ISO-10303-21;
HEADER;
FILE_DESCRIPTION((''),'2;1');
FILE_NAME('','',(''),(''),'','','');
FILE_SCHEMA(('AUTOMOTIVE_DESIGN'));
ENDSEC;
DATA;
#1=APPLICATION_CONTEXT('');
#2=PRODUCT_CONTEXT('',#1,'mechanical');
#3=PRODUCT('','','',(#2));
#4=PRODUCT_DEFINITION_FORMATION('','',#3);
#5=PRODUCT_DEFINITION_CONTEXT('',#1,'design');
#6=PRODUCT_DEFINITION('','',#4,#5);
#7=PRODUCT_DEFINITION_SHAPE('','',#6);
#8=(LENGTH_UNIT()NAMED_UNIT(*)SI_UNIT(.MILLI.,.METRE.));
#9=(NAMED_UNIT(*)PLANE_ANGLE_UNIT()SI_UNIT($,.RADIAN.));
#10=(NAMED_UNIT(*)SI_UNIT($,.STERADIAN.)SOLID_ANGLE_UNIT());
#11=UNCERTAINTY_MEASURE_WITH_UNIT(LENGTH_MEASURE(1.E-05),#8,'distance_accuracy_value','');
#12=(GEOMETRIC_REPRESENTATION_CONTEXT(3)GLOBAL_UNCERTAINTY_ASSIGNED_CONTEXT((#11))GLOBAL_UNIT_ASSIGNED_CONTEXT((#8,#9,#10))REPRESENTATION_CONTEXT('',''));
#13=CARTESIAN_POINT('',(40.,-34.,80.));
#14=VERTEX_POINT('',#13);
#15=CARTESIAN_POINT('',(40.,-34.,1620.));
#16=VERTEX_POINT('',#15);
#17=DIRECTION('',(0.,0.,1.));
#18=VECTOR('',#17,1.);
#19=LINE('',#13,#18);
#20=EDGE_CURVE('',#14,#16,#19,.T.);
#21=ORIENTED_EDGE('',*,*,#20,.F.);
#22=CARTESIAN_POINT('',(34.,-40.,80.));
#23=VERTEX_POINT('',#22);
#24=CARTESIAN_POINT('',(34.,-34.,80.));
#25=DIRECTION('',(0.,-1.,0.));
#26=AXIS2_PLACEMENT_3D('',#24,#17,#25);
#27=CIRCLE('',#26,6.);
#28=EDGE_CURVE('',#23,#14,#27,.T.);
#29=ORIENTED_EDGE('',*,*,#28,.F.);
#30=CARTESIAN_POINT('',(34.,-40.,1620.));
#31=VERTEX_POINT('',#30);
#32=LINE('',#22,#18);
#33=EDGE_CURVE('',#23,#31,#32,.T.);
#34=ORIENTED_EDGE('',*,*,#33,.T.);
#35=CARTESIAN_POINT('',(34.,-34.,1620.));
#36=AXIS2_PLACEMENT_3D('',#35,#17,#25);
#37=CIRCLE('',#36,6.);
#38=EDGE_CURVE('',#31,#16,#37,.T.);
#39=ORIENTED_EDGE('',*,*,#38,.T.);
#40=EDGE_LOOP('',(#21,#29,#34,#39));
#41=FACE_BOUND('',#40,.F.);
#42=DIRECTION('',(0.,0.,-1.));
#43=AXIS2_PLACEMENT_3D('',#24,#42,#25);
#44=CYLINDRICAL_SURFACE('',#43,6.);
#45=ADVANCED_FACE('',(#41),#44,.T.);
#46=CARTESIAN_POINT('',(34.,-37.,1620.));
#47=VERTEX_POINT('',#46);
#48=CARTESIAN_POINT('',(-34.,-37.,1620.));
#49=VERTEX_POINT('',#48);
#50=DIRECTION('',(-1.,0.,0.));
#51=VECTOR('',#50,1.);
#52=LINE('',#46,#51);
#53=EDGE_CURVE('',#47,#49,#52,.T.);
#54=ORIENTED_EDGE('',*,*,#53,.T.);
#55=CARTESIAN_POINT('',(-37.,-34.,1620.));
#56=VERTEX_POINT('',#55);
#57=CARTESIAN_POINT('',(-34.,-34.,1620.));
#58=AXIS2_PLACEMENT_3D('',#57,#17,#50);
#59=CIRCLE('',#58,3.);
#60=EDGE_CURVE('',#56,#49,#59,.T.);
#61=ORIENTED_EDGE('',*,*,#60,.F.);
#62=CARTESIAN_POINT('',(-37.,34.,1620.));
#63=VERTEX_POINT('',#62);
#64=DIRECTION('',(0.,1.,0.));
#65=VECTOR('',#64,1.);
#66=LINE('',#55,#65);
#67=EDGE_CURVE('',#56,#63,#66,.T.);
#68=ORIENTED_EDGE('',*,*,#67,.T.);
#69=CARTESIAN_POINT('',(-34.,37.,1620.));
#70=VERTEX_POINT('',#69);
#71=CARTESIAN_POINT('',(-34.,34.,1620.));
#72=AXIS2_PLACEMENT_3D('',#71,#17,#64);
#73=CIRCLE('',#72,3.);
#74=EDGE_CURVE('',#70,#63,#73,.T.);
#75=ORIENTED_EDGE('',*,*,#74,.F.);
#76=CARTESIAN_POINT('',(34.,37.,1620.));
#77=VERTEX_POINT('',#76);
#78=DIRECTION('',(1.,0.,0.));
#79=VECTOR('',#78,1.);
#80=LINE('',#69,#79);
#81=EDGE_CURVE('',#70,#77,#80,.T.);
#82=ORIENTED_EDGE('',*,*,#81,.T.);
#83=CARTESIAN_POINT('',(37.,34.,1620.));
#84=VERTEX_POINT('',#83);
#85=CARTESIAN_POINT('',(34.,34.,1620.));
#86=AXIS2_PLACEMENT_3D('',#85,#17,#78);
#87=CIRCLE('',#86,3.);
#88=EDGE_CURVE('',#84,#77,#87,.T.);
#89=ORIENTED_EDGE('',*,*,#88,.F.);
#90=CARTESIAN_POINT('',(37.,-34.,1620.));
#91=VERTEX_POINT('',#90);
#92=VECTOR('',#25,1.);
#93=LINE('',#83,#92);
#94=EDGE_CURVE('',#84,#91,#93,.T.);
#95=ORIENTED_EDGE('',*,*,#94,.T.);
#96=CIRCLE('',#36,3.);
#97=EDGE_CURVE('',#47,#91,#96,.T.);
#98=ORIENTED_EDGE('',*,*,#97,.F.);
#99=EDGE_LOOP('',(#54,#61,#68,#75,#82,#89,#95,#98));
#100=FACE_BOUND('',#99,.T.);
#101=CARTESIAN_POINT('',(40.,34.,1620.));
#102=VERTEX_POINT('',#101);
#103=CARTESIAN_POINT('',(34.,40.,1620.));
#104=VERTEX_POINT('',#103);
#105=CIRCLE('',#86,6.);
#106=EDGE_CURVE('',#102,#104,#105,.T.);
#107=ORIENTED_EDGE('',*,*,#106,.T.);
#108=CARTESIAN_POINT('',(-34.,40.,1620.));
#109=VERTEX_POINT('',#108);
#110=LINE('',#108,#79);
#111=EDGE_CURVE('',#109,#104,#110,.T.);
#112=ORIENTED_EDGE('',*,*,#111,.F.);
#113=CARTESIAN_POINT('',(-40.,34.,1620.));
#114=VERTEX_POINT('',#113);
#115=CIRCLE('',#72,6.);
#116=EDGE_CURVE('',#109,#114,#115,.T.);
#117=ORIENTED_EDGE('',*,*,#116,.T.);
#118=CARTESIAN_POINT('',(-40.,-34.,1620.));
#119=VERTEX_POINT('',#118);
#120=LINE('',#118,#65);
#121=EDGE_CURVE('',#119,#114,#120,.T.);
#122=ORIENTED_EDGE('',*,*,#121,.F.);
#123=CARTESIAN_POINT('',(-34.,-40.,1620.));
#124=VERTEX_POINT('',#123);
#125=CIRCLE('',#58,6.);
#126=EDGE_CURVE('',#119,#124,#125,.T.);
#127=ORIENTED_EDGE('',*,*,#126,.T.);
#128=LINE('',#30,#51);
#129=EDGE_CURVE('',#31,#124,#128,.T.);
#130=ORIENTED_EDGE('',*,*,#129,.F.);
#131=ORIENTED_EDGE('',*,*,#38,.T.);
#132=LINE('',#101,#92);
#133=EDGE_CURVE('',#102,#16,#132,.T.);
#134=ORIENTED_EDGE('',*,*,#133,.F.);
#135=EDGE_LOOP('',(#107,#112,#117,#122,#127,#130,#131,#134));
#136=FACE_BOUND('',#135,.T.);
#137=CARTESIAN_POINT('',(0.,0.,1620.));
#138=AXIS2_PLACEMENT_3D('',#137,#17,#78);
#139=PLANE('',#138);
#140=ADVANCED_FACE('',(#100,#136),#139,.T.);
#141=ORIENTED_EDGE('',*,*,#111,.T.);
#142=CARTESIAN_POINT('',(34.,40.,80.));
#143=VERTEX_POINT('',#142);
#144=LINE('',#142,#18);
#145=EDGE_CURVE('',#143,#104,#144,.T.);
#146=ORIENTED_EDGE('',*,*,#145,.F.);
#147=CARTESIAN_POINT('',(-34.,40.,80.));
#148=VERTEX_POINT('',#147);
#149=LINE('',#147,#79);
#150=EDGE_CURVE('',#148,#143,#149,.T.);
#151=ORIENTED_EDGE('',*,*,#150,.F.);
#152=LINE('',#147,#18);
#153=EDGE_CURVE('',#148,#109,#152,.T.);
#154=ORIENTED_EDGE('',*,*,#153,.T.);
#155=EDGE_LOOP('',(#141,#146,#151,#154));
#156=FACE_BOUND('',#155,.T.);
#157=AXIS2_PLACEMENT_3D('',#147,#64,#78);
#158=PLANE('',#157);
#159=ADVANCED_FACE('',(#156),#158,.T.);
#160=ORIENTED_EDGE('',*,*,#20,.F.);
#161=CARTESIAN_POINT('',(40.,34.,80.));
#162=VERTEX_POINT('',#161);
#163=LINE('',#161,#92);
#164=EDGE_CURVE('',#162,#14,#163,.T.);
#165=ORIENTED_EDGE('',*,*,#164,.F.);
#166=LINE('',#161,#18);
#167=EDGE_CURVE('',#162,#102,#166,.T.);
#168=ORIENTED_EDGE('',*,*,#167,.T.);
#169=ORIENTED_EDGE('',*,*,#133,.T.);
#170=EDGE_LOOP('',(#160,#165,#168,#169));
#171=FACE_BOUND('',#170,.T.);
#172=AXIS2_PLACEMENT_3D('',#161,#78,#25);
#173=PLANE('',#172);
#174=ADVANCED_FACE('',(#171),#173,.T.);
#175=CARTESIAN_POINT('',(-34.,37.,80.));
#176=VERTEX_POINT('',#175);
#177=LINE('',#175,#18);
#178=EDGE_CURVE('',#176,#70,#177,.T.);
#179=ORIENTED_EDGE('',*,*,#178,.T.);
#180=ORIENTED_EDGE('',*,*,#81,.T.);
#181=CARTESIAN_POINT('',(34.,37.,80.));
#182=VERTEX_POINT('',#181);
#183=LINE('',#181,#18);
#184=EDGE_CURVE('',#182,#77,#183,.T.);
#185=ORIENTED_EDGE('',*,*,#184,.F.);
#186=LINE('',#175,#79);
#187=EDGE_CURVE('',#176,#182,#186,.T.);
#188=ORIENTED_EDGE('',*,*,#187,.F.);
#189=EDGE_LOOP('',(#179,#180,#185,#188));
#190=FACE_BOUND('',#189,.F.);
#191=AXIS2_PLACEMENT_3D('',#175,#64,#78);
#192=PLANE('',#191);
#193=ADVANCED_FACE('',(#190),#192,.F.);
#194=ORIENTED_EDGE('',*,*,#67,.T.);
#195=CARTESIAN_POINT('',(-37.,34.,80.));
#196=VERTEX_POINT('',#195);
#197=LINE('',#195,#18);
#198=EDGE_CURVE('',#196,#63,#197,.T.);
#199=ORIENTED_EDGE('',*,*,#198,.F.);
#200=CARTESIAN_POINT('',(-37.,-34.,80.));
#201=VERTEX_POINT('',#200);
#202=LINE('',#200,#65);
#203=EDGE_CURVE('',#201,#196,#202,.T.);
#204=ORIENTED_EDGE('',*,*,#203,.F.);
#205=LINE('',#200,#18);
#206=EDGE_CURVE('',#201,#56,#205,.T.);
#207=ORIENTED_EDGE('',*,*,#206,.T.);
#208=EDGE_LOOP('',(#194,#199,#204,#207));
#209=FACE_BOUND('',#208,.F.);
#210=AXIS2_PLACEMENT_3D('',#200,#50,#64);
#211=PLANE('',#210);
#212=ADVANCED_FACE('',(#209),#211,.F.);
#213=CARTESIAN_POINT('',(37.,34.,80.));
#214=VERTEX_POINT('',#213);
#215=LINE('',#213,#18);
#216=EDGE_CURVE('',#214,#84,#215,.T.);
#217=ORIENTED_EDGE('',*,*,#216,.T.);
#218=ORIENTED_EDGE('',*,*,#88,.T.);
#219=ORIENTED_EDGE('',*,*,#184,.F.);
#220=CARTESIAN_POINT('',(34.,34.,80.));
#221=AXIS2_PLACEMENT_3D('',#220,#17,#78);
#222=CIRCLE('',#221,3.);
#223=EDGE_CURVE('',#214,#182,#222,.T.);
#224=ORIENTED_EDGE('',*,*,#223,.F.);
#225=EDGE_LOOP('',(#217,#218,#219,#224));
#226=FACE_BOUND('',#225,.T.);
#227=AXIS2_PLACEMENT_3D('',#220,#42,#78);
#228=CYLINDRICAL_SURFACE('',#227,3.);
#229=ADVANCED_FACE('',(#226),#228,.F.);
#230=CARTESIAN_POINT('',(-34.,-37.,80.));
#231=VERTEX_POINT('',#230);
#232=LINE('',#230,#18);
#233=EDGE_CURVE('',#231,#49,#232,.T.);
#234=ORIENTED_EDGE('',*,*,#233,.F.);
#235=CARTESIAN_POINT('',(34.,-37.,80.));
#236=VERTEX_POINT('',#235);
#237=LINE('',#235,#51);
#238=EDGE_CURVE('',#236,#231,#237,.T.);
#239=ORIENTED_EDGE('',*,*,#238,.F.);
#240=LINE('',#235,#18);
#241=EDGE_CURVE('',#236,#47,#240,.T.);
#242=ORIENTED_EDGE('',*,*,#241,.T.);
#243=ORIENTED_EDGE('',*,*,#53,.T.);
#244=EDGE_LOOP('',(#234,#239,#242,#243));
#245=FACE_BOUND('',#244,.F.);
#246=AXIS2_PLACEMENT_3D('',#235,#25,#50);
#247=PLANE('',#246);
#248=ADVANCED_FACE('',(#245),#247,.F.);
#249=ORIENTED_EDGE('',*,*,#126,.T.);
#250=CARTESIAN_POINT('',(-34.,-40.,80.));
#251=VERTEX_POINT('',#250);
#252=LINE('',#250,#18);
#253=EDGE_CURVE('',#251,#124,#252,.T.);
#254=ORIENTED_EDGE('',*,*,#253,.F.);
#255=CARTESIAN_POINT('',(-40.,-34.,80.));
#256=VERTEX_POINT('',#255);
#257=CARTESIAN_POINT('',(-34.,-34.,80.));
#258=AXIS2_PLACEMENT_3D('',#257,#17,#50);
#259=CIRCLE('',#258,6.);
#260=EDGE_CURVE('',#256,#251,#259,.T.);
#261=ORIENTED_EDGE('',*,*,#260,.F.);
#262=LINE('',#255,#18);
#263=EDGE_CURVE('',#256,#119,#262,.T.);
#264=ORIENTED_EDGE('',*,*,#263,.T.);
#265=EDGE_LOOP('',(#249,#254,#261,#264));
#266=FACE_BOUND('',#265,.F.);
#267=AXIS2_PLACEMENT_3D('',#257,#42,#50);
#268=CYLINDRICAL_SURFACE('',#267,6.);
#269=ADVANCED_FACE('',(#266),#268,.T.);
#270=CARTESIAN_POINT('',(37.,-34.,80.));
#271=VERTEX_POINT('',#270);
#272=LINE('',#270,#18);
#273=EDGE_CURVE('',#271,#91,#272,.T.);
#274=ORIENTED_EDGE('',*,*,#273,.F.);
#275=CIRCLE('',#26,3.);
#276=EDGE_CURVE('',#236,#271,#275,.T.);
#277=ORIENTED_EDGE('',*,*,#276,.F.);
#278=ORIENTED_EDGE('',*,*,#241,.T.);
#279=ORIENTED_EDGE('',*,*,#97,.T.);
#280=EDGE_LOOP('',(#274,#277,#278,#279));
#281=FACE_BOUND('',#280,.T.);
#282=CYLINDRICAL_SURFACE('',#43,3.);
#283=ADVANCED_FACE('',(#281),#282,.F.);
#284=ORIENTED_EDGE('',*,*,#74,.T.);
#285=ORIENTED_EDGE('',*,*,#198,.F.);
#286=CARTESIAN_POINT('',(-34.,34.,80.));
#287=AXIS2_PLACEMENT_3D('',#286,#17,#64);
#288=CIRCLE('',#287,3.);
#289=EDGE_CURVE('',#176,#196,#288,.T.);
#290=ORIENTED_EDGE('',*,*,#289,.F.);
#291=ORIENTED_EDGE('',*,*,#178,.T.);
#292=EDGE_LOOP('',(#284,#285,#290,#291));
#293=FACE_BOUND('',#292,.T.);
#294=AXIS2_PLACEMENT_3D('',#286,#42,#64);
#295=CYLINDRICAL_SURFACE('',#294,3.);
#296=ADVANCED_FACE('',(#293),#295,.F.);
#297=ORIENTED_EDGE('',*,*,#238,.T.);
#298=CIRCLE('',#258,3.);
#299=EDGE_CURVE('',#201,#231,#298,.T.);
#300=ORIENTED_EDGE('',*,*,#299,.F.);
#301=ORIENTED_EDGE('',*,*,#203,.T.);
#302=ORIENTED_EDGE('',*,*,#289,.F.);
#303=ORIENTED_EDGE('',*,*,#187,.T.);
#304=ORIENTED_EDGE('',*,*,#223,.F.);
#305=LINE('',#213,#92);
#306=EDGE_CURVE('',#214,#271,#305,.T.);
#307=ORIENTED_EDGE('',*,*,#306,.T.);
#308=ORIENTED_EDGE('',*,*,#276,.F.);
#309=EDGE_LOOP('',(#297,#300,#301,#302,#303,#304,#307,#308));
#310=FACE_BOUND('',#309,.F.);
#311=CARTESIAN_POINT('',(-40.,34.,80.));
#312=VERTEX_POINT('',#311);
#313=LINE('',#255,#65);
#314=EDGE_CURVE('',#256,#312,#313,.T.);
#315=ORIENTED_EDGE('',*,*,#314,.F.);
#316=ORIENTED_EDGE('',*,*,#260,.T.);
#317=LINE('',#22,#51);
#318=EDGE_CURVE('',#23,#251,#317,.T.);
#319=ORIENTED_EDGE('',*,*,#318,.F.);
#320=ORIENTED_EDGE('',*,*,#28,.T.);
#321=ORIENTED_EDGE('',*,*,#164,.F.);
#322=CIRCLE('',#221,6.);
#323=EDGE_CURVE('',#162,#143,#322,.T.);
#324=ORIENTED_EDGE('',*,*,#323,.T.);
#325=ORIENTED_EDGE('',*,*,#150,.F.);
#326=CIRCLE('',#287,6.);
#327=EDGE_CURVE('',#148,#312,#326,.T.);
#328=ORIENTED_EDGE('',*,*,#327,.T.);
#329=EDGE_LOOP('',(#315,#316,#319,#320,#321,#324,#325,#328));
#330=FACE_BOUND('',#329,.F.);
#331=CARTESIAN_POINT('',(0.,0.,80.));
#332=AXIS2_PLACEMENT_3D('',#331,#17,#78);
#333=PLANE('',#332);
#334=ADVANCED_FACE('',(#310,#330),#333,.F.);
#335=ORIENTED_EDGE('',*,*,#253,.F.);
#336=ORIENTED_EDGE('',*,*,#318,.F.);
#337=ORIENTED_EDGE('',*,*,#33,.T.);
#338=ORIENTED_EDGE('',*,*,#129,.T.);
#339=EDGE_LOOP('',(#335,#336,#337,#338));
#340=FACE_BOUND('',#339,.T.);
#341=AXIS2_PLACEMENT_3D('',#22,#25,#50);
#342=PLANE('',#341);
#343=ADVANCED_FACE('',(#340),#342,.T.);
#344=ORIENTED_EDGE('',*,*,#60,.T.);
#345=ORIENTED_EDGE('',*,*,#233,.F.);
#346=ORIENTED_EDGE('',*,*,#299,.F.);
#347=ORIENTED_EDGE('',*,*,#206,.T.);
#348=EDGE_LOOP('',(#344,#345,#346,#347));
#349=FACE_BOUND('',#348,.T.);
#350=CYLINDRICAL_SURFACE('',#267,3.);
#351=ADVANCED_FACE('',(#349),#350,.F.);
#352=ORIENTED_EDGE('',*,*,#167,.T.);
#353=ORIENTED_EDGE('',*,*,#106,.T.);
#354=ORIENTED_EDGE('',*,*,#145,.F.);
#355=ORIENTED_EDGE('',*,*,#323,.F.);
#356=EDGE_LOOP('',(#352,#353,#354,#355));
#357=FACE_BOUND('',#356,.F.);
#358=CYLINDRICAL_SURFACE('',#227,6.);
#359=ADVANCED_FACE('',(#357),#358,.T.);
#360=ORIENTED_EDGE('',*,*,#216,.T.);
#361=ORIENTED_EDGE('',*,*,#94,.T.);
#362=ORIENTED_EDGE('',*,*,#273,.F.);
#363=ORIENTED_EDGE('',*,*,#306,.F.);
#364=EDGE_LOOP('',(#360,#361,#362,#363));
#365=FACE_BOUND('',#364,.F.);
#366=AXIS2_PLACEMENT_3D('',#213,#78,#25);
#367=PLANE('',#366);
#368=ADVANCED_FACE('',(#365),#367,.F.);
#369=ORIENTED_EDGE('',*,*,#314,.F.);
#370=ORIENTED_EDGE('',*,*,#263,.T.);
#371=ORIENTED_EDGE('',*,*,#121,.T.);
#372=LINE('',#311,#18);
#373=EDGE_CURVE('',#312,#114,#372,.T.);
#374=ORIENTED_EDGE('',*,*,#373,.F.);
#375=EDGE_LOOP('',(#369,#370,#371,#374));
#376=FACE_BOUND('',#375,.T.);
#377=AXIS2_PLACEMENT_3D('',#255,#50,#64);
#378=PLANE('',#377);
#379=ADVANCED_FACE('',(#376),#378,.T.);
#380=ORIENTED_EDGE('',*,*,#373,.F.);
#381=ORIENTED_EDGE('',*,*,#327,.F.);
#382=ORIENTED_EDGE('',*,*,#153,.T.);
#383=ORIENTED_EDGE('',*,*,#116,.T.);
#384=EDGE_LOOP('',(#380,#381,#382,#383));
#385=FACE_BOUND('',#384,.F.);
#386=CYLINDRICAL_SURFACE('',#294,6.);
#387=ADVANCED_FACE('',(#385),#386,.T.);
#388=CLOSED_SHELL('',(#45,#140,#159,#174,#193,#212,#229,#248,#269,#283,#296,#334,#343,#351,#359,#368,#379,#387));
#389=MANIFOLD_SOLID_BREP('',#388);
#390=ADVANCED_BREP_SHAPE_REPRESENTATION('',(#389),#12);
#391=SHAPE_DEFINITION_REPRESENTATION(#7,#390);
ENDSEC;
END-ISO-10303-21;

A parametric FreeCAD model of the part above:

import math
import FreeCAD as App
import Part
import Sketcher
from FreeCAD import Vector
Q = App.Units.Quantity

doc = App.newDocument("Part")
body = doc.addObject("PartDesign::Body", "Body")

# Sketch on XY plane
sketch1 = body.newObject("Sketcher::SketchObject", "Sketch")
sketch1.AttachmentSupport = (doc.getObject("XY_Plane"), [""])
sketch1.MapMode = "FlatFace"
sketch1.AttachmentOffset = App.Placement(Vector(0, 0, 80), App.Rotation())
sketch1.addGeometry(Part.LineSegment(Vector(-40, 34, 0), Vector(-40, -34, 0)), False)
sketch1.addGeometry(Part.ArcOfCircle(Part.Circle(Vector(-34, -34, 0), Vector(0, 0, 1), 6), math.radians(180), math.radians(270)), False)
sketch1.addGeometry(Part.LineSegment(Vector(-34, -40, 0), Vector(34, -40, 0)), False)
sketch1.addGeometry(Part.ArcOfCircle(Part.Circle(Vector(34, -34, 0), Vector(0, 0, 1), 6), math.radians(-90), math.radians(0)), False)
sketch1.addGeometry(Part.LineSegment(Vector(40, -34, 0), Vector(40, 34, 0)), False)
sketch1.addGeometry(Part.ArcOfCircle(Part.Circle(Vector(34, 34, 0), Vector(0, 0, 1), 6), math.radians(0), math.radians(90)), False)
sketch1.addGeometry(Part.LineSegment(Vector(34, 40, 0), Vector(-34, 40, 0)), False)
sketch1.addGeometry(Part.ArcOfCircle(Part.Circle(Vector(-34, 34, 0), Vector(0, 0, 1), 6), math.radians(90), math.radians(180)), False)
sketch1.addGeometry(Part.ArcOfCircle(Part.Circle(Vector(-34, 34, 0), Vector(0, 0, 1), 3), math.radians(90), math.radians(180)), False)
sketch1.addGeometry(Part.LineSegment(Vector(-34, 37, 0), Vector(34, 37, 0)), False)
sketch1.addGeometry(Part.ArcOfCircle(Part.Circle(Vector(34, 34, 0), Vector(0, 0, 1), 3), math.radians(0), math.radians(90)), False)
sketch1.addGeometry(Part.LineSegment(Vector(37, 34, 0), Vector(37, -34, 0)), False)
sketch1.addGeometry(Part.ArcOfCircle(Part.Circle(Vector(34, -34, 0), Vector(0, 0, 1), 3), math.radians(-90), math.radians(0)), False)
sketch1.addGeometry(Part.LineSegment(Vector(34, -37, 0), Vector(-34, -37, 0)), False)
sketch1.addGeometry(Part.ArcOfCircle(Part.Circle(Vector(-34, -34, 0), Vector(0, 0, 1), 3), math.radians(180), math.radians(270)), False)
sketch1.addGeometry(Part.LineSegment(Vector(-37, -34, 0), Vector(-37, 34, 0)), False)
sketch1.addConstraint(Sketcher.Constraint("Tangent", 0, 2, 1, 1))
sketch1.addConstraint(Sketcher.Constraint("Tangent", 1, 2, 2, 1))
sketch1.addConstraint(Sketcher.Constraint("Tangent", 2, 2, 3, 1))
sketch1.addConstraint(Sketcher.Constraint("Tangent", 3, 2, 4, 1))
sketch1.addConstraint(Sketcher.Constraint("Tangent", 4, 2, 5, 1))
sketch1.addConstraint(Sketcher.Constraint("Tangent", 5, 2, 6, 1))
sketch1.addConstraint(Sketcher.Constraint("Tangent", 6, 2, 7, 1))
sketch1.addConstraint(Sketcher.Constraint("Tangent", 7, 2, 0, 1))
sketch1.addConstraint(Sketcher.Constraint("Tangent", 8, 1, 9, 1))
sketch1.addConstraint(Sketcher.Constraint("Tangent", 9, 2, 10, 2))
sketch1.addConstraint(Sketcher.Constraint("Tangent", 10, 1, 11, 1))
sketch1.addConstraint(Sketcher.Constraint("Tangent", 11, 2, 12, 2))
sketch1.addConstraint(Sketcher.Constraint("Tangent", 12, 1, 13, 1))
sketch1.addConstraint(Sketcher.Constraint("Tangent", 13, 2, 14, 2))
sketch1.addConstraint(Sketcher.Constraint("Tangent", 14, 1, 15, 1))
sketch1.addConstraint(Sketcher.Constraint("Tangent", 15, 2, 8, 2))
sketch1.addConstraint(Sketcher.Constraint("Vertical", 0))
sketch1.addConstraint(Sketcher.Constraint("Horizontal", 2))
sketch1.addConstraint(Sketcher.Constraint("Vertical", 4))
sketch1.addConstraint(Sketcher.Constraint("Horizontal", 6))
sketch1.addConstraint(Sketcher.Constraint("Horizontal", 9))
sketch1.addConstraint(Sketcher.Constraint("Vertical", 11))
sketch1.addConstraint(Sketcher.Constraint("Horizontal", 13))
sketch1.addConstraint(Sketcher.Constraint("Vertical", 15))
sketch1.addConstraint(Sketcher.Constraint("Coincident", 8, 3, 7, 3))
sketch1.addConstraint(Sketcher.Constraint("Coincident", 10, 3, 5, 3))
sketch1.addConstraint(Sketcher.Constraint("Coincident", 12, 3, 3, 3))
sketch1.addConstraint(Sketcher.Constraint("Equal", 1, 3))
sketch1.addConstraint(Sketcher.Constraint("Equal", 3, 5))
sketch1.addConstraint(Sketcher.Constraint("Equal", 5, 7))
sketch1.addConstraint(Sketcher.Constraint("Equal", 12, 14))
sketch1.addConstraint(Sketcher.Constraint("Symmetric", 1, 3, 5, 3, -1, 1))
sketch1.addConstraint(Sketcher.Constraint("Equal", 13, 0))
sketch1.addConstraint(Sketcher.Constraint("Radius", 1, Q("6 mm")))
sketch1.addConstraint(Sketcher.Constraint("Radius", 8, Q("3 mm")))
sketch1.addConstraint(Sketcher.Constraint("DistanceX", 0, 2, -1, 1, Q("40 mm")))
pad1 = body.newObject("PartDesign::Pad", "Pad")
pad1.Profile = sketch1
pad1.Length = 1540

doc.recompute()
